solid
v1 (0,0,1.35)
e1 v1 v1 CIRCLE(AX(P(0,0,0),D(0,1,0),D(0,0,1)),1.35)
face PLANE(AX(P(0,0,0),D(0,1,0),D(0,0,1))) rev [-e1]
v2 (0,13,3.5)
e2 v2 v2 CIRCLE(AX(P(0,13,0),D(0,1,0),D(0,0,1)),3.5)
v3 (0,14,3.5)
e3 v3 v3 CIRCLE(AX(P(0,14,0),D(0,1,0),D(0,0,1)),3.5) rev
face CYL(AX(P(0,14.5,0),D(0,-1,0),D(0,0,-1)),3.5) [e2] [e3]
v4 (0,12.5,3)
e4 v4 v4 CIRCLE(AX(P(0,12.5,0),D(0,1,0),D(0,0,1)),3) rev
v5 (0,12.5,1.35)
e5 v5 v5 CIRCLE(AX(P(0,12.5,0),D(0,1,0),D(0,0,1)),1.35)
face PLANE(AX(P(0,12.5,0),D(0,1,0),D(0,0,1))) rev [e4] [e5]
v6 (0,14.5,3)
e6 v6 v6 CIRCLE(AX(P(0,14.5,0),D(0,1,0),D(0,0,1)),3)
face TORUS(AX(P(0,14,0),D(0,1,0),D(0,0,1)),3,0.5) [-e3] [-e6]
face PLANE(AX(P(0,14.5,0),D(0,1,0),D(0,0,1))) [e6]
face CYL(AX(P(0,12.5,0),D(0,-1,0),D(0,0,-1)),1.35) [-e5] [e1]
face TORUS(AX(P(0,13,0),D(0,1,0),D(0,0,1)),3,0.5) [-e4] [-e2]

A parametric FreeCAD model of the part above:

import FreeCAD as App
import Part
import Sketcher
from FreeCAD import Vector
Q = App.Units.Quantity


def edges_at(feature, points):
    """Names of the edges that pass closest to the given points."""
    edges = feature.Shape.Edges
    near = lambda p: min(range(len(edges)), key=lambda i: edges[i].distToShape(Part.Vertex(*p))[0])
    return sorted({f"Edge{near(p) + 1}" for p in points})

doc = App.newDocument("Part")
params = doc.addObject("Spreadsheet::Sheet", "Params")
for row, (alias, value) in enumerate([
    ("sketch1_diameter", "2.7 mm"),
    ("pad1_length", "12.5 mm"),
    ("sketch2_diameter", "7 mm"),
    ("pad2_length", "2 mm"),
    ("fillet_radius", "0.5 mm"),
], start=1):
    params.set(f"A{row}", alias)
    params.set(f"B{row}", "=" + value)
    params.setAlias(f"B{row}", alias)

body = doc.addObject("PartDesign::Body", "Body")

# Sketch on XZ plane
sketch1 = doc.addObject("Sketcher::SketchObject", "Sketch")
body.addObject(sketch1)
sketch1.AttachmentSupport = (doc.XZ_Plane, [""])
sketch1.MapMode = "FlatFace"
sketch1.addGeometry(Part.Circle(Vector(0, 0, 0), Vector(0, 0, 1), 1.35), False)
sketch1.addConstraint(Sketcher.Constraint("Coincident", 0, 3, -1, 1))
sketch1.addConstraint(Sketcher.Constraint("Diameter", 0, Q("2.7 mm")))
sketch1.setExpression("Constraints[1]", "Params.sketch1_diameter")
pad1 = doc.addObject("PartDesign::Pad", "Pad")
body.addObject(pad1)
pad1.Profile = sketch1
pad1.setExpression("Length", "Params.pad1_length")
pad1.Reversed = True

# Sketch on XZ plane
sketch2 = doc.addObject("Sketcher::SketchObject", "Sketch001")
body.addObject(sketch2)
sketch2.AttachmentSupport = (doc.XZ_Plane, [""])
sketch2.MapMode = "FlatFace"
sketch2.AttachmentOffset = App.Placement(Vector(0, 0, -12.5), App.Rotation())
sketch2.addGeometry(Part.Circle(Vector(0, 0, 0), Vector(0, 0, 1), 3.5), False)
sketch2.addConstraint(Sketcher.Constraint("Coincident", 0, 3, -1, 1))
sketch2.addConstraint(Sketcher.Constraint("Diameter", 0, Q("7 mm")))
sketch2.setExpression("Constraints[1]", "Params.sketch2_diameter")
pad2 = doc.addObject("PartDesign::Pad", "Pad001")
body.addObject(pad2)
pad2.Profile = sketch2
pad2.setExpression("Length", "Params.pad2_length")
pad2.Reversed = True
doc.recompute()

fillet = doc.addObject("PartDesign::Fillet", "Fillet")
body.addObject(fillet)
fillet.Base = (pad2, edges_at(pad2, [(0, 12.5, -3.5), (0, 14.5, -3.5)]))
fillet.setExpression("Radius", "Params.fillet_radius")

doc.recompute()
